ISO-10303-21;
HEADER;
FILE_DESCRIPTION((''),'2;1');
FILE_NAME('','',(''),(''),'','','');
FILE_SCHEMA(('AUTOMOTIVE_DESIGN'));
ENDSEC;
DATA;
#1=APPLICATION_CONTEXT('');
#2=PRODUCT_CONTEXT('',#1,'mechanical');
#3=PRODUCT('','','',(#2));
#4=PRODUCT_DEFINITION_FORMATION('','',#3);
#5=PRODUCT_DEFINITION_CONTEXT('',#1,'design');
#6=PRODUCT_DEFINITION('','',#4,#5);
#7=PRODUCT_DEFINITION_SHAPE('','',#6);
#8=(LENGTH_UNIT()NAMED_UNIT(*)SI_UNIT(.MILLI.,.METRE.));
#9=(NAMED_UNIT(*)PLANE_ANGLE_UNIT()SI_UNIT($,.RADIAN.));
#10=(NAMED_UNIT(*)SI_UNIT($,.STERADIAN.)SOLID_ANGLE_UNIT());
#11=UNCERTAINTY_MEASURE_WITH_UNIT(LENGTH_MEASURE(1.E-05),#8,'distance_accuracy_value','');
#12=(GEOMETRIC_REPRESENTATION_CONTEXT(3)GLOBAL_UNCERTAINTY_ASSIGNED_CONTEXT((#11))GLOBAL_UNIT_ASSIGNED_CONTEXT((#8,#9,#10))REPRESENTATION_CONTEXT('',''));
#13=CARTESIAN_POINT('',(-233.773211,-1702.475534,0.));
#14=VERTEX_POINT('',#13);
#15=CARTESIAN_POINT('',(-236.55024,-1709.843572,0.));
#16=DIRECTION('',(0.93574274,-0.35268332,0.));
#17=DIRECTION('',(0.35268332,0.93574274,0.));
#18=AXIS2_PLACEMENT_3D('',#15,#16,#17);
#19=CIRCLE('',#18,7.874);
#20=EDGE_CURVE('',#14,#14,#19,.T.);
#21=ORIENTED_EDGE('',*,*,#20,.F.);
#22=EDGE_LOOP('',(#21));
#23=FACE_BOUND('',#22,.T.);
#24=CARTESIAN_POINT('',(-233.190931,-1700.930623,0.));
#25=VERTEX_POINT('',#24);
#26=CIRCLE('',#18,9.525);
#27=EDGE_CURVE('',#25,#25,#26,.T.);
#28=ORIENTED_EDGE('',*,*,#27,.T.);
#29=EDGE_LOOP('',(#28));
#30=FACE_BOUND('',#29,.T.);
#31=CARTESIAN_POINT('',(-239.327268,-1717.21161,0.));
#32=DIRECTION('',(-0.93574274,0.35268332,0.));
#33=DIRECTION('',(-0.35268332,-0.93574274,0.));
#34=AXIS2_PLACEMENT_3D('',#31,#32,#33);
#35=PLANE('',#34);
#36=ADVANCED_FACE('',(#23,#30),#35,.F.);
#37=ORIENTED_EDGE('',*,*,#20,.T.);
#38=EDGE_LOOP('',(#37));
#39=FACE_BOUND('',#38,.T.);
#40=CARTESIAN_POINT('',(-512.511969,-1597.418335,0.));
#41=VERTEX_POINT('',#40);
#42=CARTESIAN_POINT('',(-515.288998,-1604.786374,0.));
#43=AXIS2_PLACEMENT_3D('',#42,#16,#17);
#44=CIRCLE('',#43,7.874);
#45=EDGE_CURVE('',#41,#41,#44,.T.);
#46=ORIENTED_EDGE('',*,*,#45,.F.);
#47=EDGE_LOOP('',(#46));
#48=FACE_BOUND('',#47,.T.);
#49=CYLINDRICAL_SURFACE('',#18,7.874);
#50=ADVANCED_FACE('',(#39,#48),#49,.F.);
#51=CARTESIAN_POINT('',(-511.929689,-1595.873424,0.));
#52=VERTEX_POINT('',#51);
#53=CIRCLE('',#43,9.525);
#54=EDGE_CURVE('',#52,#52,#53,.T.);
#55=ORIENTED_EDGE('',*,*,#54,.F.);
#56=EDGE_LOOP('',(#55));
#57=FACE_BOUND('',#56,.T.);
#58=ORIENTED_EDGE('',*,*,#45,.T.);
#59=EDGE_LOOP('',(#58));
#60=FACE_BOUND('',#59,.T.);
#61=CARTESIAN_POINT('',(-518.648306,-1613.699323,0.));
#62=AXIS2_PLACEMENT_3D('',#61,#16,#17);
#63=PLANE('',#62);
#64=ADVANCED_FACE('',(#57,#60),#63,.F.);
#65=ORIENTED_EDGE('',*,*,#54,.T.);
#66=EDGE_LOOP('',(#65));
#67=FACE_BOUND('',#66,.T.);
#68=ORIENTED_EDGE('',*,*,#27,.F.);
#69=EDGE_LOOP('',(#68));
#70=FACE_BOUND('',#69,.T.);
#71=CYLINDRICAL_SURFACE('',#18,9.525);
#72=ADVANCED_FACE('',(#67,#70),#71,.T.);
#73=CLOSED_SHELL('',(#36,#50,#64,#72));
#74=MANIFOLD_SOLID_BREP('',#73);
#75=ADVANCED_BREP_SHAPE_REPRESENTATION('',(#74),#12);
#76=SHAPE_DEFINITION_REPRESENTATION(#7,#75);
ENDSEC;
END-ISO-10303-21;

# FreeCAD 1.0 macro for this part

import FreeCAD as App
import Part
import Sketcher
from FreeCAD import Vector
Q = App.Units.Quantity


def add_polygon(sketch, points):
    """Adds a closed chain of lines whose ends are joined by coincident constraints."""
    first, n = sketch.GeometryCount, len(points)
    for a, b in zip(points, points[1:] + points[:1]):
        sketch.addGeometry(Part.LineSegment(App.Vector(*a, 0), App.Vector(*b, 0)), False)
    for i in range(n):
        sketch.addConstraint(Sketcher.Constraint("Coincident", first + i, 2, first + (i + 1) % n, 1))

doc = App.newDocument("Part")
body = doc.addObject("PartDesign::Body", "Body")

sketch1 = doc.addObject("Sketcher::SketchObject", "Sketch")
body.addObject(sketch1)
sketch1.AttachmentSupport = (doc.XY_Plane, [""])
sketch1.MapMode = "FlatFace"
add_polygon(sketch1, [(-518.648306, -1613.699323), (-239.909548, -1718.756522), (-239.327268, -1717.21161), (-518.066026, -1612.154412)])
sketch1.addGeometry(Part.LineSegment(Vector(-236.55024, -1709.843572, 0), Vector(-515.288998, -1604.786374, 0)), True)
sketch1.addConstraint([
    Sketcher.Constraint("Perpendicular", 0, 1),
    Sketcher.Constraint("Perpendicular", 1, 2),
    Sketcher.Constraint("Perpendicular", 2, 3),
    Sketcher.Constraint("Perpendicular", 3, 4),
    Sketcher.Constraint("Equal", 2, 4),
    Sketcher.Constraint("Distance", 1, Q("0.065 in")),
    Sketcher.Constraint("DistanceY", 1, 2, 2, 2, Q("105.057198 mm")),
    Sketcher.Constraint("Distance", 0, Q("297.879691 mm")),
    Sketcher.Constraint("DistanceX", 0, 2, -1, 1, Q("239.909548 mm")),
    Sketcher.Constraint("DistanceY", 0, 2, -1, 1, Q("1718.756522 mm")),
    Sketcher.Constraint("DistanceX", 4, 1, -1, 1, Q("236.55024 mm")),
    Sketcher.Constraint("DistanceY", 1, 2, 4, 1, Q("7.368038 mm")),
])
revolution = doc.addObject("PartDesign::Revolution", "Revolution")
body.addObject(revolution)
revolution.Profile = sketch1
revolution.ReferenceAxis = (sketch1, ["Axis0"])
revolution.Angle = 360

doc.recompute()
